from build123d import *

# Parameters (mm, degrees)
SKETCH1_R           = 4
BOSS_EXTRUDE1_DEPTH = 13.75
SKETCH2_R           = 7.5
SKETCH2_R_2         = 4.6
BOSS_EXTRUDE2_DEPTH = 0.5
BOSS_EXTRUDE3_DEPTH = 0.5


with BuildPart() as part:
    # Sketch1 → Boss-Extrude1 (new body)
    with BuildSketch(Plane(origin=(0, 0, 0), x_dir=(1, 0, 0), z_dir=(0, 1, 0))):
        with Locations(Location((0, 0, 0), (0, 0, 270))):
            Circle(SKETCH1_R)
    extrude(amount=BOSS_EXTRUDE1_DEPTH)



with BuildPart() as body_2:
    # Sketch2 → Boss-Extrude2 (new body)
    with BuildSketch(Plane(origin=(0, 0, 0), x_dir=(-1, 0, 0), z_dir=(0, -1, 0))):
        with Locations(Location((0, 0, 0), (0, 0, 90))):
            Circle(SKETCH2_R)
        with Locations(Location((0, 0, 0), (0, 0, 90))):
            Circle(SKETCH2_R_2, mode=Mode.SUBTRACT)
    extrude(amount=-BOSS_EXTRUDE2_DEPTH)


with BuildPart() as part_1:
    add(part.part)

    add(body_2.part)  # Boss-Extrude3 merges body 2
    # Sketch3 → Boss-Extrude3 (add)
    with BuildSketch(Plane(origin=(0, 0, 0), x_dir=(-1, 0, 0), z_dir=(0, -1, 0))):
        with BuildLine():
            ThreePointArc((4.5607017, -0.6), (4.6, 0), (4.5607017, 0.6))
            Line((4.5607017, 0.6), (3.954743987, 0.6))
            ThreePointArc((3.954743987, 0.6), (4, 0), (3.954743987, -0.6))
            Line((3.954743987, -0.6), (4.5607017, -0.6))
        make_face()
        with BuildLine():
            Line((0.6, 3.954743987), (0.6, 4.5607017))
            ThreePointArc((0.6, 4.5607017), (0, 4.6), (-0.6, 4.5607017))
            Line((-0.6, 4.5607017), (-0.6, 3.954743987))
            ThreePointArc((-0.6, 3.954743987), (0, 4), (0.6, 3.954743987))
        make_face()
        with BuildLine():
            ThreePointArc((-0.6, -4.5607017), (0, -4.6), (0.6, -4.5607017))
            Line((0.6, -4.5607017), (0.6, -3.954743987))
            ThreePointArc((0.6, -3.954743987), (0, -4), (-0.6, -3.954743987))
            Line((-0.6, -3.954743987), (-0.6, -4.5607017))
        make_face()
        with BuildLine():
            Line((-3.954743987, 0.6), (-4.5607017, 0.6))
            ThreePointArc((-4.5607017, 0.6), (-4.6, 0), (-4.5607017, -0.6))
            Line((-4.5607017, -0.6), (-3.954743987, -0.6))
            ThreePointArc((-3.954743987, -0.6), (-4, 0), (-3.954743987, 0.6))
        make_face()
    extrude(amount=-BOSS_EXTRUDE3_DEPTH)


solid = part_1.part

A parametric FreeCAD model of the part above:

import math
import FreeCAD as App
import Part
import Sketcher
Q = App.Units.Quantity

doc = App.newDocument("Part")
body = doc.addObject("PartDesign::Body", "Body")

# Sketch on XZ plane
sketch1 = body.newObject("Sketcher::SketchObject", "Sketch")
sketch1.AttachmentSupport = (doc.getObject("XZ_Plane"), [""])
sketch1.MapMode = "FlatFace"
sketch1.addGeometry(Part.Circle(App.Vector(0, 0, 0), App.Vector(0, 0, 1), 4), False)
sketch1.addConstraint(Sketcher.Constraint("Coincident", 0, 3, -1, 1))
sketch1.addConstraint(Sketcher.Constraint("Diameter", 0, Q("8 mm")))
pad1 = body.newObject("PartDesign::Pad", "Pad")
pad1.Profile = sketch1
pad1.Length = 13.75
pad1.Reversed = True
body2 = doc.addObject("PartDesign::Body", "Body001")

# Sketch on XZ plane
sketch2 = body2.newObject("Sketcher::SketchObject", "Sketch001")
sketch2.AttachmentSupport = (doc.getObject("XZ_Plane001"), [""])
sketch2.MapMode = "FlatFace"
sketch2.addGeometry(Part.Circle(App.Vector(0, 0, 0), App.Vector(0, 0, 1), 7.5), False)
sketch2.addGeometry(Part.Circle(App.Vector(0, 0, 0), App.Vector(0, 0, 1), 4.6), False)
sketch2.addConstraint(Sketcher.Constraint("Coincident", 0, 3, -1, 1))
sketch2.addConstraint(Sketcher.Constraint("Coincident", 1, 3, -1, 1))
sketch2.addConstraint(Sketcher.Constraint("Diameter", 0, Q("15 mm")))
sketch2.addConstraint(Sketcher.Constraint("Diameter", 1, Q("9.2 mm")))
pad2 = body2.newObject("PartDesign::Pad", "Pad001")
pad2.Profile = sketch2
pad2.Length = 0.5
pad2.Reversed = True
body.AllowCompound = True
doc.recompute()

boolean = body.newObject("PartDesign::Boolean", "Boolean")
boolean.Type = "Fuse"
boolean.addObjects([body2])

# Sketch on XZ plane
sketch3 = body.newObject("Sketcher::SketchObject", "Sketch002")
sketch3.AttachmentSupport = (doc.getObject("XZ_Plane"), [""])
sketch3.MapMode = "FlatFace"
sketch3.addGeometry(Part.ArcOfCircle(Part.Circle(App.Vector(0, 0, 0), App.Vector(0, 0, 1), 4.6), math.radians(172.505282), math.radians(187.494718)), False)
sketch3.addGeometry(Part.LineSegment(App.Vector(-4.560702, -0.6, 0), App.Vector(-3.954744, -0.6, 0)), False)
sketch3.addGeometry(Part.ArcOfCircle(Part.Circle(App.Vector(0, 0, 0), App.Vector(0, 0, 1), 4), math.radians(171.373074), math.radians(188.626926)), False)
sketch3.addGeometry(Part.LineSegment(App.Vector(-3.954744, 0.6, 0), App.Vector(-4.560702, 0.6, 0)), False)
sketch3.addGeometry(Part.LineSegment(App.Vector(-0.6, -3.954744, 0), App.Vector(-0.6, -4.560702, 0)), False)
sketch3.addGeometry(Part.ArcOfCircle(Part.Circle(App.Vector(0, 0, 0), App.Vector(0, 0, 1), 4.6), math.radians(-97.494718), math.radians(-82.505282)), False)
sketch3.addGeometry(Part.LineSegment(App.Vector(0.6, -4.560702, 0), App.Vector(0.6, -3.954744, 0)), False)
sketch3.addGeometry(Part.ArcOfCircle(Part.Circle(App.Vector(0, 0, 0), App.Vector(0, 0, 1), 4), math.radians(-98.626926), math.radians(-81.373074)), False)
sketch3.addGeometry(Part.ArcOfCircle(Part.Circle(App.Vector(0, 0, 0), App.Vector(0, 0, 1), 4.6), math.radians(82.505282), math.radians(97.494718)), False)
sketch3.addGeometry(Part.LineSegment(App.Vector(-0.6, 4.560702, 0), App.Vector(-0.6, 3.954744, 0)), False)
sketch3.addGeometry(Part.ArcOfCircle(Part.Circle(App.Vector(0, 0, 0), App.Vector(0, 0, 1), 4), math.radians(81.373074), math.radians(98.626926)), False)
sketch3.addGeometry(Part.LineSegment(App.Vector(0.6, 3.954744, 0), App.Vector(0.6, 4.560702, 0)), False)
sketch3.addGeometry(Part.LineSegment(App.Vector(3.954744, -0.6, 0), App.Vector(4.560702, -0.6, 0)), False)
sketch3.addGeometry(Part.ArcOfCircle(Part.Circle(App.Vector(0, 0, 0), App.Vector(0, 0, 1), 4.6), math.radians(-7.494718), math.radians(7.494718)), False)
sketch3.addGeometry(Part.LineSegment(App.Vector(4.560702, 0.6, 0), App.Vector(3.954744, 0.6, 0)), False)
sketch3.addGeometry(Part.ArcOfCircle(Part.Circle(App.Vector(0, 0, 0), App.Vector(0, 0, 1), 4), math.radians(-8.626926), math.radians(8.626926)), False)
sketch3.addConstraint(Sketcher.Constraint("Coincident", 0, 2, 1, 1))
sketch3.addConstraint(Sketcher.Constraint("Coincident", 1, 2, 2, 2))
sketch3.addConstraint(Sketcher.Constraint("Coincident", 2, 1, 3, 1))
sketch3.addConstraint(Sketcher.Constraint("Coincident", 3, 2, 0, 1))
sketch3.addConstraint(Sketcher.Constraint("Coincident", 4, 2, 5, 1))
sketch3.addConstraint(Sketcher.Constraint("Coincident", 5, 2, 6, 1))
sketch3.addConstraint(Sketcher.Constraint("Coincident", 6, 2, 7, 2))
sketch3.addConstraint(Sketcher.Constraint("Coincident", 7, 1, 4, 1))
sketch3.addConstraint(Sketcher.Constraint("Coincident", 8, 2, 9, 1))
sketch3.addConstraint(Sketcher.Constraint("Coincident", 9, 2, 10, 2))
sketch3.addConstraint(Sketcher.Constraint("Coincident", 10, 1, 11, 1))
sketch3.addConstraint(Sketcher.Constraint("Coincident", 11, 2, 8, 1))
sketch3.addConstraint(Sketcher.Constraint("Coincident", 12, 2, 13, 1))
sketch3.addConstraint(Sketcher.Constraint("Coincident", 13, 2, 14, 1))
sketch3.addConstraint(Sketcher.Constraint("Coincident", 14, 2, 15, 2))
sketch3.addConstraint(Sketcher.Constraint("Coincident", 15, 1, 12, 1))
sketch3.addConstraint(Sketcher.Constraint("Horizontal", 1))
sketch3.addConstraint(Sketcher.Constraint("Horizontal", 3))
sketch3.addConstraint(Sketcher.Constraint("Vertical", 4))
sketch3.addConstraint(Sketcher.Constraint("Vertical", 6))
sketch3.addConstraint(Sketcher.Constraint("Vertical", 9))
sketch3.addConstraint(Sketcher.Constraint("Vertical", 11))
sketch3.addConstraint(Sketcher.Constraint("Horizontal", 12))
sketch3.addConstraint(Sketcher.Constraint("Horizontal", 14))
sketch3.addConstraint(Sketcher.Constraint("Coincident", 0, 3, -1, 1))
sketch3.addConstraint(Sketcher.Constraint("Coincident", 2, 3, -1, 1))
sketch3.addConstraint(Sketcher.Constraint("Coincident", 5, 3, -1, 1))
sketch3.addConstraint(Sketcher.Constraint("Coincident", 7, 3, -1, 1))
sketch3.addConstraint(Sketcher.Constraint("Coincident", 8, 3, -1, 1))
sketch3.addConstraint(Sketcher.Constraint("Coincident", 10, 3, -1, 1))
sketch3.addConstraint(Sketcher.Constraint("Coincident", 13, 3, -1, 1))
sketch3.addConstraint(Sketcher.Constraint("Coincident", 15, 3, -1, 1))
sketch3.addConstraint(Sketcher.Constraint("Equal", 0, 5))
sketch3.addConstraint(Sketcher.Constraint("Equal", 2, 7))
sketch3.addConstraint(Sketcher.Constraint("Equal", 5, 8))
sketch3.addConstraint(Sketcher.Constraint("Equal", 7, 10))
sketch3.addConstraint(Sketcher.Constraint("Equal", 8, 13))
sketch3.addConstraint(Sketcher.Constraint("Equal", 10, 15))
sketch3.addConstraint(Sketcher.Constraint("Horizontal", 4, 2, 5, 2))
sketch3.addConstraint(Sketcher.Constraint("Horizontal", 9, 2, 10, 1))
sketch3.addConstraint(Sketcher.Constraint("Horizontal", 1, 2, 12, 2))
sketch3.addConstraint(Sketcher.Constraint("Horizontal", 3, 2, 13, 2))
sketch3.addConstraint(Sketcher.Constraint("Vertical", 1, 2, 2, 1))
sketch3.addConstraint(Sketcher.Constraint("Vertical", 7, 1, 8, 2))
sketch3.addConstraint(Sketcher.Constraint("Equal", 14, 4))
sketch3.addConstraint(Sketcher.Constraint("Radius", 2, Q("4 mm")))
sketch3.addConstraint(Sketcher.Constraint("Radius", 0, Q("4.6 mm")))
sketch3.addConstraint(Sketcher.Constraint("DistanceY", 0, 2, -1, 1, Q("0.6 mm")))
pad3 = body.newObject("PartDesign::Pad", "Pad002")
pad3.Profile = sketch3
pad3.Length = 0.5
pad3.Reversed = True

doc.recompute()
